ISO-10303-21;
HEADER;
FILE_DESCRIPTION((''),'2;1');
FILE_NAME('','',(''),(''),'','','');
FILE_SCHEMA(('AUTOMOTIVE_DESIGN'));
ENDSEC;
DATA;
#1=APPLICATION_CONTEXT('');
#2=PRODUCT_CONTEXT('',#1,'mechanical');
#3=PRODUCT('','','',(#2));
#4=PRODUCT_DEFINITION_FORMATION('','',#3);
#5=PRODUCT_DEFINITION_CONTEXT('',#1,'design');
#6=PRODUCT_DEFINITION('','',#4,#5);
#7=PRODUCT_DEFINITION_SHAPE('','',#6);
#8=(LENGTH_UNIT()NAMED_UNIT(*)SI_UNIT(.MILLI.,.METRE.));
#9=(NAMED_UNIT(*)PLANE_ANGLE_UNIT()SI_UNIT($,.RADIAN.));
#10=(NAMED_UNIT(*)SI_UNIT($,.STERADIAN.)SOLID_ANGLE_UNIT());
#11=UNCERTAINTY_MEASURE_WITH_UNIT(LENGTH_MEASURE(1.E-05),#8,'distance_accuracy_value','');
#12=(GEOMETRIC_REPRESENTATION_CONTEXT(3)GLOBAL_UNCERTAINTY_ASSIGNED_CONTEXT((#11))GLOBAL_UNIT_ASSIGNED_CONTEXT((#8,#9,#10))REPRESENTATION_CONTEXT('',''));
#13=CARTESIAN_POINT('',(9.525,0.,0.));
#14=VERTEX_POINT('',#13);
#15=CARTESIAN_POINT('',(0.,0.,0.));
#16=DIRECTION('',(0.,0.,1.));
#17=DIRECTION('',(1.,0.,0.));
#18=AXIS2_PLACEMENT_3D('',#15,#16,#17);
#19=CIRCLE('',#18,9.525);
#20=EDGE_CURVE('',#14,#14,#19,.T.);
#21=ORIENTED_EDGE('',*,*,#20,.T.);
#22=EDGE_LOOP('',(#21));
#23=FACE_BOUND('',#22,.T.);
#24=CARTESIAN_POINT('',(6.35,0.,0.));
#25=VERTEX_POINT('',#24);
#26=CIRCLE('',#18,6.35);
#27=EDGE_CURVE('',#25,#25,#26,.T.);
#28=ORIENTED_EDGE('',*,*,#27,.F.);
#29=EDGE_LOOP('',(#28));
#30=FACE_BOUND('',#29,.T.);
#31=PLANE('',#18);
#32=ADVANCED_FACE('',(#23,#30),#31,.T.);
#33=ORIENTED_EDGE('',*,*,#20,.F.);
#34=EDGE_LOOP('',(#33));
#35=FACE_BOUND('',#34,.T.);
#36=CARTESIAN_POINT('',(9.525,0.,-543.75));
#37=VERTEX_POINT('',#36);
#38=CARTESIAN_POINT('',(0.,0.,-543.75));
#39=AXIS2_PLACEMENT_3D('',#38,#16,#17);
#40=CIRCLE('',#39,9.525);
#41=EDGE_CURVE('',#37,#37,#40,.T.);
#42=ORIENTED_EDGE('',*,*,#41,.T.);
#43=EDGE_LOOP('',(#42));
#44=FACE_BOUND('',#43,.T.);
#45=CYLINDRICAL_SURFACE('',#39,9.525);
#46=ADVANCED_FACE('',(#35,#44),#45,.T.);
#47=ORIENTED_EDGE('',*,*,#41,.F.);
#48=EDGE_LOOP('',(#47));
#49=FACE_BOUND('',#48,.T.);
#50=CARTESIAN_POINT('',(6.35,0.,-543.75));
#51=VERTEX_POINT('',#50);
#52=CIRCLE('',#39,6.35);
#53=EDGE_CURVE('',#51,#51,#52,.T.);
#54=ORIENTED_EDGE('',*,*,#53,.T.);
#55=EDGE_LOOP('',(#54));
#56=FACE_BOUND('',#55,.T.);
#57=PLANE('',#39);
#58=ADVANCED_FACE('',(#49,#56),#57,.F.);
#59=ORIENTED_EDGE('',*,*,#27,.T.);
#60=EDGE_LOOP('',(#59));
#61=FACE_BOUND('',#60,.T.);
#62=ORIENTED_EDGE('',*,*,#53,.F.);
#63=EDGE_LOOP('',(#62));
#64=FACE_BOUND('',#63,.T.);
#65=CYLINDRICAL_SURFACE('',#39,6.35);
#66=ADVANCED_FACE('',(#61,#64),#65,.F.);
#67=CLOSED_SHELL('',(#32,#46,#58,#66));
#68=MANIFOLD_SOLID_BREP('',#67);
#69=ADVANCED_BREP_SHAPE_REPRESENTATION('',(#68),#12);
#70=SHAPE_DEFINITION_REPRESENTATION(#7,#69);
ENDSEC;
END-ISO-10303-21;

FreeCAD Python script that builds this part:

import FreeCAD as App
import Part
import Sketcher
from FreeCAD import Vector
Q = App.Units.Quantity

doc = App.newDocument("Part")
body = doc.addObject("PartDesign::Body", "Body")

# Sketch on XY plane
sketch1 = body.newObject("Sketcher::SketchObject", "Sketch")
sketch1.AttachmentSupport = (doc.getObject("XY_Plane"), [""])
sketch1.MapMode = "FlatFace"
sketch1.addGeometry([
    Part.Circle(Vector(0, 0, 0), Vector(0, 0, 1), 10),
    Part.Circle(Vector(0, 0, 0), Vector(0, 0, 1), 6),
], False)
sketch1.addConstraint([
    Sketcher.Constraint("Coincident", 0, 3, -1, 1),
    Sketcher.Constraint("Coincident", 1, 3, -1, 1),
    Sketcher.Constraint("Diameter", 1, Q("0.5 in")),
    Sketcher.Constraint("Diameter", 0, Q("0.75 in")),
])
pad1 = body.newObject("PartDesign::Pad", "Pad")
pad1.Profile = sketch1
pad1.Length = 543.75
pad1.Reversed = True

doc.recompute()
